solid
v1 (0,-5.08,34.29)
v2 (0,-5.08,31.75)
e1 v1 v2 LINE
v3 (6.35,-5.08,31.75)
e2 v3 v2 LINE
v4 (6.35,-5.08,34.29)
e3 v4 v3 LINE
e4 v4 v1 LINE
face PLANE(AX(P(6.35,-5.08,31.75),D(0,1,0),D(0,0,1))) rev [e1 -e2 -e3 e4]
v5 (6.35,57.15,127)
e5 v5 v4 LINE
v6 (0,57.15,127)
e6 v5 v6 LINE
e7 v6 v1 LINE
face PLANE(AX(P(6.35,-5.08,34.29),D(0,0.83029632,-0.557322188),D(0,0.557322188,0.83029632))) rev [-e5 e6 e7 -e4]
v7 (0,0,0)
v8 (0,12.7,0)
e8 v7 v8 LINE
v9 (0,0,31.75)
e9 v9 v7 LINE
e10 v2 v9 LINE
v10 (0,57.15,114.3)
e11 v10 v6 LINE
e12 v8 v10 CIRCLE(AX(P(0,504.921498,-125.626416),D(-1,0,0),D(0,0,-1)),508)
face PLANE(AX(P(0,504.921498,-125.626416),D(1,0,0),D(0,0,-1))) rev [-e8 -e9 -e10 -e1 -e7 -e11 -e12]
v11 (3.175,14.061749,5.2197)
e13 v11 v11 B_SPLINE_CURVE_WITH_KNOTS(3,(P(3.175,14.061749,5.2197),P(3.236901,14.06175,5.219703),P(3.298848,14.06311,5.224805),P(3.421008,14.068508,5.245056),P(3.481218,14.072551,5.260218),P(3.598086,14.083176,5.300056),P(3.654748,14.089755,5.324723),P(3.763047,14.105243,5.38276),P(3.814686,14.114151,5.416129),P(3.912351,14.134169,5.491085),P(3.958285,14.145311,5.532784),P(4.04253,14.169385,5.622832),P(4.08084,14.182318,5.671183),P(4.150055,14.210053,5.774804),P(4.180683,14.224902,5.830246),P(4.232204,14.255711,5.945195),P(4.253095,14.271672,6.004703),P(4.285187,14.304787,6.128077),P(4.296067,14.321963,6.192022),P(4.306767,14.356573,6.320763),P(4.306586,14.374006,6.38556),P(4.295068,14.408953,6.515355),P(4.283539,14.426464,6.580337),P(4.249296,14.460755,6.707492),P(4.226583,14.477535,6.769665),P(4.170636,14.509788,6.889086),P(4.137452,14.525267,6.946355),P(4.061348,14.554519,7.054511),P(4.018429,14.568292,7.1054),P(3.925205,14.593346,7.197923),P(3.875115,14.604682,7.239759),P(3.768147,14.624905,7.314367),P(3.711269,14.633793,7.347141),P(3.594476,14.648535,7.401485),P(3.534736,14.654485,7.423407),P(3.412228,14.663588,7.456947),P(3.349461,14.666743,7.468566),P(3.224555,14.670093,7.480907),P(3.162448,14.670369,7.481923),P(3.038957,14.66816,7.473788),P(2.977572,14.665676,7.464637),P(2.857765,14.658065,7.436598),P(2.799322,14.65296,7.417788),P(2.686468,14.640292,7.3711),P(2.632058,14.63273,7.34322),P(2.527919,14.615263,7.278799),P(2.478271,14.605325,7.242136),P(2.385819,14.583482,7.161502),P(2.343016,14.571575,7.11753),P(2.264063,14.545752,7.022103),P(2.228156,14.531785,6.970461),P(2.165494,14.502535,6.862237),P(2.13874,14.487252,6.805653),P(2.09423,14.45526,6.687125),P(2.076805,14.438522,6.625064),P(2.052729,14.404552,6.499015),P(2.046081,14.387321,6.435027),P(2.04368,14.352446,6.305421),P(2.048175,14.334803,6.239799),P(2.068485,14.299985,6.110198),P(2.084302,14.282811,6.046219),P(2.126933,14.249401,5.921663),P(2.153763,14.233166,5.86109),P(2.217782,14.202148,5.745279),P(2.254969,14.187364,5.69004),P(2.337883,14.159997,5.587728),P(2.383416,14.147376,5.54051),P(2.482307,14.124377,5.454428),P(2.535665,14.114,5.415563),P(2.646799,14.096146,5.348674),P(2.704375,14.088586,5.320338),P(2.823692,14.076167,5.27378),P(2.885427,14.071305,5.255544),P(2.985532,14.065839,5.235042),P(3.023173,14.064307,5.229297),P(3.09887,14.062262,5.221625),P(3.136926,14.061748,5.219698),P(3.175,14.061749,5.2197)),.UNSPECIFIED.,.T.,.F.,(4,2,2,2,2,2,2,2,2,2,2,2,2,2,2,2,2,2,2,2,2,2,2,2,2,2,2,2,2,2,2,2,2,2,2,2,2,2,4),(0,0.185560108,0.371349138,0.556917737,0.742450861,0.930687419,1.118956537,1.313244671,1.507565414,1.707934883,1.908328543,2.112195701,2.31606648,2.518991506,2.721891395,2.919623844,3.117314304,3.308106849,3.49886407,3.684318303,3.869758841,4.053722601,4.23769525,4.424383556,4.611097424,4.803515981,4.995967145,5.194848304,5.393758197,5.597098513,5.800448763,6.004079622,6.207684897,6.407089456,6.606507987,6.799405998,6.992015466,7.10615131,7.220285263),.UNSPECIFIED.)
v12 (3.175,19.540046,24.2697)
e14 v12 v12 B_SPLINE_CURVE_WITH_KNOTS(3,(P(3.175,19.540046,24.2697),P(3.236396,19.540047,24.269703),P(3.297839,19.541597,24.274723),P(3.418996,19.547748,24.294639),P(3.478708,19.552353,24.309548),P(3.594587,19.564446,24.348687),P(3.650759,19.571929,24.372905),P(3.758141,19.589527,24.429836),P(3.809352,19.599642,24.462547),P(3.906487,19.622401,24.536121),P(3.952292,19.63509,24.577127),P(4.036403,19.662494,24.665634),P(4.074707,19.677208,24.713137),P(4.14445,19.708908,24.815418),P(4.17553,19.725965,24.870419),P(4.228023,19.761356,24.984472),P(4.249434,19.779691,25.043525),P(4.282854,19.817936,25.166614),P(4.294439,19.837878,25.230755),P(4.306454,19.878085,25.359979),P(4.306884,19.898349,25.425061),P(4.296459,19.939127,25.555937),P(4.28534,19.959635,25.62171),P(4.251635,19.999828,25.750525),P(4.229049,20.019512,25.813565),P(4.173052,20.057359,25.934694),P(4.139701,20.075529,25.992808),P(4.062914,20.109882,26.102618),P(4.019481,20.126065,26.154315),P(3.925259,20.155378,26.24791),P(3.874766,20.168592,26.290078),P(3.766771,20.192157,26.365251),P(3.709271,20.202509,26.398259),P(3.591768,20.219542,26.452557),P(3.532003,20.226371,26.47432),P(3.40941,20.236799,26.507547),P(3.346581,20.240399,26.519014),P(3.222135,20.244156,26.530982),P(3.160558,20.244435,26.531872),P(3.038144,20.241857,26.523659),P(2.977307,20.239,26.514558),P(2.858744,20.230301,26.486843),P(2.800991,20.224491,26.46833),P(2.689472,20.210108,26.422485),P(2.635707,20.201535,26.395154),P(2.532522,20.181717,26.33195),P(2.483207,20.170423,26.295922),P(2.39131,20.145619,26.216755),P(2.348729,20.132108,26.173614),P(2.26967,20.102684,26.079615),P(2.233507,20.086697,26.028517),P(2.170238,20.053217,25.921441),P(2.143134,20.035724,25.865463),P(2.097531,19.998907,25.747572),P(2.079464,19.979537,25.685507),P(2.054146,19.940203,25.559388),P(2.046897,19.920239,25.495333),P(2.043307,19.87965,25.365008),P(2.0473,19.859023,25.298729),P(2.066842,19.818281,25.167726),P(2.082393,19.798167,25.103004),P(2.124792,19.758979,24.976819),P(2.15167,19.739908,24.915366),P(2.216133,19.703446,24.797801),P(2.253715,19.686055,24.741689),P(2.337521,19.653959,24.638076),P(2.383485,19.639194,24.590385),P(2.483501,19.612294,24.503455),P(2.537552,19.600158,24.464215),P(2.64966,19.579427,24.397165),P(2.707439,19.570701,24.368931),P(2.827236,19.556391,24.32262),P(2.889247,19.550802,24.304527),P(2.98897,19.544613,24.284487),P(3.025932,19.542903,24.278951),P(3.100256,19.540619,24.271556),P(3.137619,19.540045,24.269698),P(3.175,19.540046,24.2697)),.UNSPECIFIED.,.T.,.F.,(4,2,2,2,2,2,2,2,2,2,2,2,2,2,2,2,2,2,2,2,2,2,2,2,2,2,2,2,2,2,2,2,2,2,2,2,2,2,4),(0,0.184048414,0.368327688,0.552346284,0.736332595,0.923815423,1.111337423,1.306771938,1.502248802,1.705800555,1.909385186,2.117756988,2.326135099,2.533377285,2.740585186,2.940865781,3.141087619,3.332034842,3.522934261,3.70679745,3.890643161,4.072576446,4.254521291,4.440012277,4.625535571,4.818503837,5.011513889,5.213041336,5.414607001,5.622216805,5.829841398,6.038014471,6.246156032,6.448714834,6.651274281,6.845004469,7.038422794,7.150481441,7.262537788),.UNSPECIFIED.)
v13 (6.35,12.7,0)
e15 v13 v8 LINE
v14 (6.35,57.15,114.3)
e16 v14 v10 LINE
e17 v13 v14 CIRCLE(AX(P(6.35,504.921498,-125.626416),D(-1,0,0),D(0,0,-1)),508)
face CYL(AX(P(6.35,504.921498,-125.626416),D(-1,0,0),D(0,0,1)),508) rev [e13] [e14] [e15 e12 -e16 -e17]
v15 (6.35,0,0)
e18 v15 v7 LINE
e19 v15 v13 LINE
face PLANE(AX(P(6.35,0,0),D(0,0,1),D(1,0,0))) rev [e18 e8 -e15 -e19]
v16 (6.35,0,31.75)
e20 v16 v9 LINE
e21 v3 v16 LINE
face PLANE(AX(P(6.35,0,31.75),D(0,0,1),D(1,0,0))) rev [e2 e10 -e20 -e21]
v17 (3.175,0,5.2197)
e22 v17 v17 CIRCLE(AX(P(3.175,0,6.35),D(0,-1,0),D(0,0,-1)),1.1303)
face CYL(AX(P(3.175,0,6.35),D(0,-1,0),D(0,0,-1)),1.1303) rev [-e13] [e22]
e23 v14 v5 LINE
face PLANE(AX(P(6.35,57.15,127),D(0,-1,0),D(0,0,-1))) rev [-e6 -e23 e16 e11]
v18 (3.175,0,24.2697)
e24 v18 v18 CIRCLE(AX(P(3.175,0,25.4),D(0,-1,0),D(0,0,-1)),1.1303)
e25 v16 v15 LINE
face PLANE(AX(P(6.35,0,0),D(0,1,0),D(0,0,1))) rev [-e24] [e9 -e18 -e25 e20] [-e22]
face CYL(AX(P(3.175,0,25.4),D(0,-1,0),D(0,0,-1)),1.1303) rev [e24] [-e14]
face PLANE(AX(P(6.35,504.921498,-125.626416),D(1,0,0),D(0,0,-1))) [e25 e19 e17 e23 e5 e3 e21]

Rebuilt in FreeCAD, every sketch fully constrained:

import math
import FreeCAD as App
import Part
import Sketcher

V = App.Vector
Q = App.Units.Quantity

doc = App.newDocument("Part")
body = doc.addObject("PartDesign::Body", "Body")

sketch1 = doc.addObject("Sketcher::SketchObject", "Sketch")
body.addObject(sketch1)
sketch1.AttachmentSupport = (doc.YZ_Plane, [""])
sketch1.MapMode = "FlatFace"
sketch1.addGeometry([
    Part.LineSegment(V(0, 0, 0), V(12.7, 0, 0)),
    Part.ArcOfCircle(Part.Circle(V(504.9, -125.6, 0), V(0, 0, 1), 508), math.radians(151.82), math.radians(165.68)),
    Part.LineSegment(V(57.1, 114.3, 0), V(57.1, 127, 0)),
    Part.LineSegment(V(57.1, 127, 0), V(-5.1, 34.3, 0)),
    Part.LineSegment(V(-5.1, 34.3, 0), V(-5.1, 31.8, 0)),
    Part.LineSegment(V(-5.1, 31.8, 0), V(0, 31.8, 0)),
    Part.LineSegment(V(0, 31.8, 0), V(0, 0, 0)),
], False)
sketch1.addConstraint([
    Sketcher.Constraint("Coincident", 0, 2, 1, 2),
    Sketcher.Constraint("Coincident", 1, 1, 2, 1),
    Sketcher.Constraint("Coincident", 2, 2, 3, 1),
    Sketcher.Constraint("Coincident", 3, 2, 4, 1),
    Sketcher.Constraint("Coincident", 4, 2, 5, 1),
    Sketcher.Constraint("Coincident", 5, 2, 6, 1),
    Sketcher.Constraint("Coincident", 6, 2, 0, 1),
    Sketcher.Constraint("Horizontal", 0),
    Sketcher.Constraint("Vertical", 2),
    Sketcher.Constraint("Vertical", 4),
    Sketcher.Constraint("Horizontal", 5),
    Sketcher.Constraint("Vertical", 6),
    Sketcher.Constraint("Coincident", 6, 2, -1, 1),
    Sketcher.Constraint("Equal", 0, 2),
    Sketcher.Constraint("Radius", 1, Q("20 in")),
    Sketcher.Constraint("DistanceX", 0, 1, 0, 2, Q("0.5 in")),
    Sketcher.Constraint("DistanceX", 5, 1, 5, 2, Q("0.2 in")),
    Sketcher.Constraint("DistanceY", 4, 2, 4, 1, Q("0.1 in")),
    Sketcher.Constraint("DistanceY", -1, 1, 2, 2, Q("5 in")),
    Sketcher.Constraint("DistanceY", 6, 2, 6, 1, Q("1.25 in")),
    Sketcher.Constraint("DistanceX", -1, 1, 2, 2, Q("2.25 in")),
])
pad1 = doc.addObject("PartDesign::Pad", "Pad")
body.addObject(pad1)
pad1.Profile = sketch1
pad1.Length = Q("0.25 in")

sketch2 = doc.addObject("Sketcher::SketchObject", "Sketch001")
body.addObject(sketch2)
sketch2.AttachmentSupport = (doc.XZ_Plane, [""])
sketch2.MapMode = "FlatFace"
sketch2.addGeometry([
    Part.Circle(V(3.2, 25.4, 0), V(0, 0, 1), 1.1),
    Part.Circle(V(3.2, 6.3, 0), V(0, 0, 1), 1.1),
], False)
sketch2.addConstraint([
    Sketcher.Constraint("Equal", 0, 1),
    Sketcher.Constraint("Vertical", 0, 3, 1, 3),
    Sketcher.Constraint("Diameter", 0, Q("0.089 in")),
    Sketcher.Constraint("DistanceY", -1, 1, 0, 3, Q("1 in")),
    Sketcher.Constraint("DistanceY", -1, 1, 1, 3, Q("0.25 in")),
    Sketcher.Constraint("DistanceX", -1, 1, 0, 3, Q("0.125 in")),
])
doc.recompute()
hole = doc.addObject("PartDesign::Hole", "Hole")
body.addObject(hole)
hole.Profile = sketch2
hole.ThreadType = "None"
hole.Diameter = Q("0.089 in")
hole.DepthType = "ThroughAll"

doc.recompute()
